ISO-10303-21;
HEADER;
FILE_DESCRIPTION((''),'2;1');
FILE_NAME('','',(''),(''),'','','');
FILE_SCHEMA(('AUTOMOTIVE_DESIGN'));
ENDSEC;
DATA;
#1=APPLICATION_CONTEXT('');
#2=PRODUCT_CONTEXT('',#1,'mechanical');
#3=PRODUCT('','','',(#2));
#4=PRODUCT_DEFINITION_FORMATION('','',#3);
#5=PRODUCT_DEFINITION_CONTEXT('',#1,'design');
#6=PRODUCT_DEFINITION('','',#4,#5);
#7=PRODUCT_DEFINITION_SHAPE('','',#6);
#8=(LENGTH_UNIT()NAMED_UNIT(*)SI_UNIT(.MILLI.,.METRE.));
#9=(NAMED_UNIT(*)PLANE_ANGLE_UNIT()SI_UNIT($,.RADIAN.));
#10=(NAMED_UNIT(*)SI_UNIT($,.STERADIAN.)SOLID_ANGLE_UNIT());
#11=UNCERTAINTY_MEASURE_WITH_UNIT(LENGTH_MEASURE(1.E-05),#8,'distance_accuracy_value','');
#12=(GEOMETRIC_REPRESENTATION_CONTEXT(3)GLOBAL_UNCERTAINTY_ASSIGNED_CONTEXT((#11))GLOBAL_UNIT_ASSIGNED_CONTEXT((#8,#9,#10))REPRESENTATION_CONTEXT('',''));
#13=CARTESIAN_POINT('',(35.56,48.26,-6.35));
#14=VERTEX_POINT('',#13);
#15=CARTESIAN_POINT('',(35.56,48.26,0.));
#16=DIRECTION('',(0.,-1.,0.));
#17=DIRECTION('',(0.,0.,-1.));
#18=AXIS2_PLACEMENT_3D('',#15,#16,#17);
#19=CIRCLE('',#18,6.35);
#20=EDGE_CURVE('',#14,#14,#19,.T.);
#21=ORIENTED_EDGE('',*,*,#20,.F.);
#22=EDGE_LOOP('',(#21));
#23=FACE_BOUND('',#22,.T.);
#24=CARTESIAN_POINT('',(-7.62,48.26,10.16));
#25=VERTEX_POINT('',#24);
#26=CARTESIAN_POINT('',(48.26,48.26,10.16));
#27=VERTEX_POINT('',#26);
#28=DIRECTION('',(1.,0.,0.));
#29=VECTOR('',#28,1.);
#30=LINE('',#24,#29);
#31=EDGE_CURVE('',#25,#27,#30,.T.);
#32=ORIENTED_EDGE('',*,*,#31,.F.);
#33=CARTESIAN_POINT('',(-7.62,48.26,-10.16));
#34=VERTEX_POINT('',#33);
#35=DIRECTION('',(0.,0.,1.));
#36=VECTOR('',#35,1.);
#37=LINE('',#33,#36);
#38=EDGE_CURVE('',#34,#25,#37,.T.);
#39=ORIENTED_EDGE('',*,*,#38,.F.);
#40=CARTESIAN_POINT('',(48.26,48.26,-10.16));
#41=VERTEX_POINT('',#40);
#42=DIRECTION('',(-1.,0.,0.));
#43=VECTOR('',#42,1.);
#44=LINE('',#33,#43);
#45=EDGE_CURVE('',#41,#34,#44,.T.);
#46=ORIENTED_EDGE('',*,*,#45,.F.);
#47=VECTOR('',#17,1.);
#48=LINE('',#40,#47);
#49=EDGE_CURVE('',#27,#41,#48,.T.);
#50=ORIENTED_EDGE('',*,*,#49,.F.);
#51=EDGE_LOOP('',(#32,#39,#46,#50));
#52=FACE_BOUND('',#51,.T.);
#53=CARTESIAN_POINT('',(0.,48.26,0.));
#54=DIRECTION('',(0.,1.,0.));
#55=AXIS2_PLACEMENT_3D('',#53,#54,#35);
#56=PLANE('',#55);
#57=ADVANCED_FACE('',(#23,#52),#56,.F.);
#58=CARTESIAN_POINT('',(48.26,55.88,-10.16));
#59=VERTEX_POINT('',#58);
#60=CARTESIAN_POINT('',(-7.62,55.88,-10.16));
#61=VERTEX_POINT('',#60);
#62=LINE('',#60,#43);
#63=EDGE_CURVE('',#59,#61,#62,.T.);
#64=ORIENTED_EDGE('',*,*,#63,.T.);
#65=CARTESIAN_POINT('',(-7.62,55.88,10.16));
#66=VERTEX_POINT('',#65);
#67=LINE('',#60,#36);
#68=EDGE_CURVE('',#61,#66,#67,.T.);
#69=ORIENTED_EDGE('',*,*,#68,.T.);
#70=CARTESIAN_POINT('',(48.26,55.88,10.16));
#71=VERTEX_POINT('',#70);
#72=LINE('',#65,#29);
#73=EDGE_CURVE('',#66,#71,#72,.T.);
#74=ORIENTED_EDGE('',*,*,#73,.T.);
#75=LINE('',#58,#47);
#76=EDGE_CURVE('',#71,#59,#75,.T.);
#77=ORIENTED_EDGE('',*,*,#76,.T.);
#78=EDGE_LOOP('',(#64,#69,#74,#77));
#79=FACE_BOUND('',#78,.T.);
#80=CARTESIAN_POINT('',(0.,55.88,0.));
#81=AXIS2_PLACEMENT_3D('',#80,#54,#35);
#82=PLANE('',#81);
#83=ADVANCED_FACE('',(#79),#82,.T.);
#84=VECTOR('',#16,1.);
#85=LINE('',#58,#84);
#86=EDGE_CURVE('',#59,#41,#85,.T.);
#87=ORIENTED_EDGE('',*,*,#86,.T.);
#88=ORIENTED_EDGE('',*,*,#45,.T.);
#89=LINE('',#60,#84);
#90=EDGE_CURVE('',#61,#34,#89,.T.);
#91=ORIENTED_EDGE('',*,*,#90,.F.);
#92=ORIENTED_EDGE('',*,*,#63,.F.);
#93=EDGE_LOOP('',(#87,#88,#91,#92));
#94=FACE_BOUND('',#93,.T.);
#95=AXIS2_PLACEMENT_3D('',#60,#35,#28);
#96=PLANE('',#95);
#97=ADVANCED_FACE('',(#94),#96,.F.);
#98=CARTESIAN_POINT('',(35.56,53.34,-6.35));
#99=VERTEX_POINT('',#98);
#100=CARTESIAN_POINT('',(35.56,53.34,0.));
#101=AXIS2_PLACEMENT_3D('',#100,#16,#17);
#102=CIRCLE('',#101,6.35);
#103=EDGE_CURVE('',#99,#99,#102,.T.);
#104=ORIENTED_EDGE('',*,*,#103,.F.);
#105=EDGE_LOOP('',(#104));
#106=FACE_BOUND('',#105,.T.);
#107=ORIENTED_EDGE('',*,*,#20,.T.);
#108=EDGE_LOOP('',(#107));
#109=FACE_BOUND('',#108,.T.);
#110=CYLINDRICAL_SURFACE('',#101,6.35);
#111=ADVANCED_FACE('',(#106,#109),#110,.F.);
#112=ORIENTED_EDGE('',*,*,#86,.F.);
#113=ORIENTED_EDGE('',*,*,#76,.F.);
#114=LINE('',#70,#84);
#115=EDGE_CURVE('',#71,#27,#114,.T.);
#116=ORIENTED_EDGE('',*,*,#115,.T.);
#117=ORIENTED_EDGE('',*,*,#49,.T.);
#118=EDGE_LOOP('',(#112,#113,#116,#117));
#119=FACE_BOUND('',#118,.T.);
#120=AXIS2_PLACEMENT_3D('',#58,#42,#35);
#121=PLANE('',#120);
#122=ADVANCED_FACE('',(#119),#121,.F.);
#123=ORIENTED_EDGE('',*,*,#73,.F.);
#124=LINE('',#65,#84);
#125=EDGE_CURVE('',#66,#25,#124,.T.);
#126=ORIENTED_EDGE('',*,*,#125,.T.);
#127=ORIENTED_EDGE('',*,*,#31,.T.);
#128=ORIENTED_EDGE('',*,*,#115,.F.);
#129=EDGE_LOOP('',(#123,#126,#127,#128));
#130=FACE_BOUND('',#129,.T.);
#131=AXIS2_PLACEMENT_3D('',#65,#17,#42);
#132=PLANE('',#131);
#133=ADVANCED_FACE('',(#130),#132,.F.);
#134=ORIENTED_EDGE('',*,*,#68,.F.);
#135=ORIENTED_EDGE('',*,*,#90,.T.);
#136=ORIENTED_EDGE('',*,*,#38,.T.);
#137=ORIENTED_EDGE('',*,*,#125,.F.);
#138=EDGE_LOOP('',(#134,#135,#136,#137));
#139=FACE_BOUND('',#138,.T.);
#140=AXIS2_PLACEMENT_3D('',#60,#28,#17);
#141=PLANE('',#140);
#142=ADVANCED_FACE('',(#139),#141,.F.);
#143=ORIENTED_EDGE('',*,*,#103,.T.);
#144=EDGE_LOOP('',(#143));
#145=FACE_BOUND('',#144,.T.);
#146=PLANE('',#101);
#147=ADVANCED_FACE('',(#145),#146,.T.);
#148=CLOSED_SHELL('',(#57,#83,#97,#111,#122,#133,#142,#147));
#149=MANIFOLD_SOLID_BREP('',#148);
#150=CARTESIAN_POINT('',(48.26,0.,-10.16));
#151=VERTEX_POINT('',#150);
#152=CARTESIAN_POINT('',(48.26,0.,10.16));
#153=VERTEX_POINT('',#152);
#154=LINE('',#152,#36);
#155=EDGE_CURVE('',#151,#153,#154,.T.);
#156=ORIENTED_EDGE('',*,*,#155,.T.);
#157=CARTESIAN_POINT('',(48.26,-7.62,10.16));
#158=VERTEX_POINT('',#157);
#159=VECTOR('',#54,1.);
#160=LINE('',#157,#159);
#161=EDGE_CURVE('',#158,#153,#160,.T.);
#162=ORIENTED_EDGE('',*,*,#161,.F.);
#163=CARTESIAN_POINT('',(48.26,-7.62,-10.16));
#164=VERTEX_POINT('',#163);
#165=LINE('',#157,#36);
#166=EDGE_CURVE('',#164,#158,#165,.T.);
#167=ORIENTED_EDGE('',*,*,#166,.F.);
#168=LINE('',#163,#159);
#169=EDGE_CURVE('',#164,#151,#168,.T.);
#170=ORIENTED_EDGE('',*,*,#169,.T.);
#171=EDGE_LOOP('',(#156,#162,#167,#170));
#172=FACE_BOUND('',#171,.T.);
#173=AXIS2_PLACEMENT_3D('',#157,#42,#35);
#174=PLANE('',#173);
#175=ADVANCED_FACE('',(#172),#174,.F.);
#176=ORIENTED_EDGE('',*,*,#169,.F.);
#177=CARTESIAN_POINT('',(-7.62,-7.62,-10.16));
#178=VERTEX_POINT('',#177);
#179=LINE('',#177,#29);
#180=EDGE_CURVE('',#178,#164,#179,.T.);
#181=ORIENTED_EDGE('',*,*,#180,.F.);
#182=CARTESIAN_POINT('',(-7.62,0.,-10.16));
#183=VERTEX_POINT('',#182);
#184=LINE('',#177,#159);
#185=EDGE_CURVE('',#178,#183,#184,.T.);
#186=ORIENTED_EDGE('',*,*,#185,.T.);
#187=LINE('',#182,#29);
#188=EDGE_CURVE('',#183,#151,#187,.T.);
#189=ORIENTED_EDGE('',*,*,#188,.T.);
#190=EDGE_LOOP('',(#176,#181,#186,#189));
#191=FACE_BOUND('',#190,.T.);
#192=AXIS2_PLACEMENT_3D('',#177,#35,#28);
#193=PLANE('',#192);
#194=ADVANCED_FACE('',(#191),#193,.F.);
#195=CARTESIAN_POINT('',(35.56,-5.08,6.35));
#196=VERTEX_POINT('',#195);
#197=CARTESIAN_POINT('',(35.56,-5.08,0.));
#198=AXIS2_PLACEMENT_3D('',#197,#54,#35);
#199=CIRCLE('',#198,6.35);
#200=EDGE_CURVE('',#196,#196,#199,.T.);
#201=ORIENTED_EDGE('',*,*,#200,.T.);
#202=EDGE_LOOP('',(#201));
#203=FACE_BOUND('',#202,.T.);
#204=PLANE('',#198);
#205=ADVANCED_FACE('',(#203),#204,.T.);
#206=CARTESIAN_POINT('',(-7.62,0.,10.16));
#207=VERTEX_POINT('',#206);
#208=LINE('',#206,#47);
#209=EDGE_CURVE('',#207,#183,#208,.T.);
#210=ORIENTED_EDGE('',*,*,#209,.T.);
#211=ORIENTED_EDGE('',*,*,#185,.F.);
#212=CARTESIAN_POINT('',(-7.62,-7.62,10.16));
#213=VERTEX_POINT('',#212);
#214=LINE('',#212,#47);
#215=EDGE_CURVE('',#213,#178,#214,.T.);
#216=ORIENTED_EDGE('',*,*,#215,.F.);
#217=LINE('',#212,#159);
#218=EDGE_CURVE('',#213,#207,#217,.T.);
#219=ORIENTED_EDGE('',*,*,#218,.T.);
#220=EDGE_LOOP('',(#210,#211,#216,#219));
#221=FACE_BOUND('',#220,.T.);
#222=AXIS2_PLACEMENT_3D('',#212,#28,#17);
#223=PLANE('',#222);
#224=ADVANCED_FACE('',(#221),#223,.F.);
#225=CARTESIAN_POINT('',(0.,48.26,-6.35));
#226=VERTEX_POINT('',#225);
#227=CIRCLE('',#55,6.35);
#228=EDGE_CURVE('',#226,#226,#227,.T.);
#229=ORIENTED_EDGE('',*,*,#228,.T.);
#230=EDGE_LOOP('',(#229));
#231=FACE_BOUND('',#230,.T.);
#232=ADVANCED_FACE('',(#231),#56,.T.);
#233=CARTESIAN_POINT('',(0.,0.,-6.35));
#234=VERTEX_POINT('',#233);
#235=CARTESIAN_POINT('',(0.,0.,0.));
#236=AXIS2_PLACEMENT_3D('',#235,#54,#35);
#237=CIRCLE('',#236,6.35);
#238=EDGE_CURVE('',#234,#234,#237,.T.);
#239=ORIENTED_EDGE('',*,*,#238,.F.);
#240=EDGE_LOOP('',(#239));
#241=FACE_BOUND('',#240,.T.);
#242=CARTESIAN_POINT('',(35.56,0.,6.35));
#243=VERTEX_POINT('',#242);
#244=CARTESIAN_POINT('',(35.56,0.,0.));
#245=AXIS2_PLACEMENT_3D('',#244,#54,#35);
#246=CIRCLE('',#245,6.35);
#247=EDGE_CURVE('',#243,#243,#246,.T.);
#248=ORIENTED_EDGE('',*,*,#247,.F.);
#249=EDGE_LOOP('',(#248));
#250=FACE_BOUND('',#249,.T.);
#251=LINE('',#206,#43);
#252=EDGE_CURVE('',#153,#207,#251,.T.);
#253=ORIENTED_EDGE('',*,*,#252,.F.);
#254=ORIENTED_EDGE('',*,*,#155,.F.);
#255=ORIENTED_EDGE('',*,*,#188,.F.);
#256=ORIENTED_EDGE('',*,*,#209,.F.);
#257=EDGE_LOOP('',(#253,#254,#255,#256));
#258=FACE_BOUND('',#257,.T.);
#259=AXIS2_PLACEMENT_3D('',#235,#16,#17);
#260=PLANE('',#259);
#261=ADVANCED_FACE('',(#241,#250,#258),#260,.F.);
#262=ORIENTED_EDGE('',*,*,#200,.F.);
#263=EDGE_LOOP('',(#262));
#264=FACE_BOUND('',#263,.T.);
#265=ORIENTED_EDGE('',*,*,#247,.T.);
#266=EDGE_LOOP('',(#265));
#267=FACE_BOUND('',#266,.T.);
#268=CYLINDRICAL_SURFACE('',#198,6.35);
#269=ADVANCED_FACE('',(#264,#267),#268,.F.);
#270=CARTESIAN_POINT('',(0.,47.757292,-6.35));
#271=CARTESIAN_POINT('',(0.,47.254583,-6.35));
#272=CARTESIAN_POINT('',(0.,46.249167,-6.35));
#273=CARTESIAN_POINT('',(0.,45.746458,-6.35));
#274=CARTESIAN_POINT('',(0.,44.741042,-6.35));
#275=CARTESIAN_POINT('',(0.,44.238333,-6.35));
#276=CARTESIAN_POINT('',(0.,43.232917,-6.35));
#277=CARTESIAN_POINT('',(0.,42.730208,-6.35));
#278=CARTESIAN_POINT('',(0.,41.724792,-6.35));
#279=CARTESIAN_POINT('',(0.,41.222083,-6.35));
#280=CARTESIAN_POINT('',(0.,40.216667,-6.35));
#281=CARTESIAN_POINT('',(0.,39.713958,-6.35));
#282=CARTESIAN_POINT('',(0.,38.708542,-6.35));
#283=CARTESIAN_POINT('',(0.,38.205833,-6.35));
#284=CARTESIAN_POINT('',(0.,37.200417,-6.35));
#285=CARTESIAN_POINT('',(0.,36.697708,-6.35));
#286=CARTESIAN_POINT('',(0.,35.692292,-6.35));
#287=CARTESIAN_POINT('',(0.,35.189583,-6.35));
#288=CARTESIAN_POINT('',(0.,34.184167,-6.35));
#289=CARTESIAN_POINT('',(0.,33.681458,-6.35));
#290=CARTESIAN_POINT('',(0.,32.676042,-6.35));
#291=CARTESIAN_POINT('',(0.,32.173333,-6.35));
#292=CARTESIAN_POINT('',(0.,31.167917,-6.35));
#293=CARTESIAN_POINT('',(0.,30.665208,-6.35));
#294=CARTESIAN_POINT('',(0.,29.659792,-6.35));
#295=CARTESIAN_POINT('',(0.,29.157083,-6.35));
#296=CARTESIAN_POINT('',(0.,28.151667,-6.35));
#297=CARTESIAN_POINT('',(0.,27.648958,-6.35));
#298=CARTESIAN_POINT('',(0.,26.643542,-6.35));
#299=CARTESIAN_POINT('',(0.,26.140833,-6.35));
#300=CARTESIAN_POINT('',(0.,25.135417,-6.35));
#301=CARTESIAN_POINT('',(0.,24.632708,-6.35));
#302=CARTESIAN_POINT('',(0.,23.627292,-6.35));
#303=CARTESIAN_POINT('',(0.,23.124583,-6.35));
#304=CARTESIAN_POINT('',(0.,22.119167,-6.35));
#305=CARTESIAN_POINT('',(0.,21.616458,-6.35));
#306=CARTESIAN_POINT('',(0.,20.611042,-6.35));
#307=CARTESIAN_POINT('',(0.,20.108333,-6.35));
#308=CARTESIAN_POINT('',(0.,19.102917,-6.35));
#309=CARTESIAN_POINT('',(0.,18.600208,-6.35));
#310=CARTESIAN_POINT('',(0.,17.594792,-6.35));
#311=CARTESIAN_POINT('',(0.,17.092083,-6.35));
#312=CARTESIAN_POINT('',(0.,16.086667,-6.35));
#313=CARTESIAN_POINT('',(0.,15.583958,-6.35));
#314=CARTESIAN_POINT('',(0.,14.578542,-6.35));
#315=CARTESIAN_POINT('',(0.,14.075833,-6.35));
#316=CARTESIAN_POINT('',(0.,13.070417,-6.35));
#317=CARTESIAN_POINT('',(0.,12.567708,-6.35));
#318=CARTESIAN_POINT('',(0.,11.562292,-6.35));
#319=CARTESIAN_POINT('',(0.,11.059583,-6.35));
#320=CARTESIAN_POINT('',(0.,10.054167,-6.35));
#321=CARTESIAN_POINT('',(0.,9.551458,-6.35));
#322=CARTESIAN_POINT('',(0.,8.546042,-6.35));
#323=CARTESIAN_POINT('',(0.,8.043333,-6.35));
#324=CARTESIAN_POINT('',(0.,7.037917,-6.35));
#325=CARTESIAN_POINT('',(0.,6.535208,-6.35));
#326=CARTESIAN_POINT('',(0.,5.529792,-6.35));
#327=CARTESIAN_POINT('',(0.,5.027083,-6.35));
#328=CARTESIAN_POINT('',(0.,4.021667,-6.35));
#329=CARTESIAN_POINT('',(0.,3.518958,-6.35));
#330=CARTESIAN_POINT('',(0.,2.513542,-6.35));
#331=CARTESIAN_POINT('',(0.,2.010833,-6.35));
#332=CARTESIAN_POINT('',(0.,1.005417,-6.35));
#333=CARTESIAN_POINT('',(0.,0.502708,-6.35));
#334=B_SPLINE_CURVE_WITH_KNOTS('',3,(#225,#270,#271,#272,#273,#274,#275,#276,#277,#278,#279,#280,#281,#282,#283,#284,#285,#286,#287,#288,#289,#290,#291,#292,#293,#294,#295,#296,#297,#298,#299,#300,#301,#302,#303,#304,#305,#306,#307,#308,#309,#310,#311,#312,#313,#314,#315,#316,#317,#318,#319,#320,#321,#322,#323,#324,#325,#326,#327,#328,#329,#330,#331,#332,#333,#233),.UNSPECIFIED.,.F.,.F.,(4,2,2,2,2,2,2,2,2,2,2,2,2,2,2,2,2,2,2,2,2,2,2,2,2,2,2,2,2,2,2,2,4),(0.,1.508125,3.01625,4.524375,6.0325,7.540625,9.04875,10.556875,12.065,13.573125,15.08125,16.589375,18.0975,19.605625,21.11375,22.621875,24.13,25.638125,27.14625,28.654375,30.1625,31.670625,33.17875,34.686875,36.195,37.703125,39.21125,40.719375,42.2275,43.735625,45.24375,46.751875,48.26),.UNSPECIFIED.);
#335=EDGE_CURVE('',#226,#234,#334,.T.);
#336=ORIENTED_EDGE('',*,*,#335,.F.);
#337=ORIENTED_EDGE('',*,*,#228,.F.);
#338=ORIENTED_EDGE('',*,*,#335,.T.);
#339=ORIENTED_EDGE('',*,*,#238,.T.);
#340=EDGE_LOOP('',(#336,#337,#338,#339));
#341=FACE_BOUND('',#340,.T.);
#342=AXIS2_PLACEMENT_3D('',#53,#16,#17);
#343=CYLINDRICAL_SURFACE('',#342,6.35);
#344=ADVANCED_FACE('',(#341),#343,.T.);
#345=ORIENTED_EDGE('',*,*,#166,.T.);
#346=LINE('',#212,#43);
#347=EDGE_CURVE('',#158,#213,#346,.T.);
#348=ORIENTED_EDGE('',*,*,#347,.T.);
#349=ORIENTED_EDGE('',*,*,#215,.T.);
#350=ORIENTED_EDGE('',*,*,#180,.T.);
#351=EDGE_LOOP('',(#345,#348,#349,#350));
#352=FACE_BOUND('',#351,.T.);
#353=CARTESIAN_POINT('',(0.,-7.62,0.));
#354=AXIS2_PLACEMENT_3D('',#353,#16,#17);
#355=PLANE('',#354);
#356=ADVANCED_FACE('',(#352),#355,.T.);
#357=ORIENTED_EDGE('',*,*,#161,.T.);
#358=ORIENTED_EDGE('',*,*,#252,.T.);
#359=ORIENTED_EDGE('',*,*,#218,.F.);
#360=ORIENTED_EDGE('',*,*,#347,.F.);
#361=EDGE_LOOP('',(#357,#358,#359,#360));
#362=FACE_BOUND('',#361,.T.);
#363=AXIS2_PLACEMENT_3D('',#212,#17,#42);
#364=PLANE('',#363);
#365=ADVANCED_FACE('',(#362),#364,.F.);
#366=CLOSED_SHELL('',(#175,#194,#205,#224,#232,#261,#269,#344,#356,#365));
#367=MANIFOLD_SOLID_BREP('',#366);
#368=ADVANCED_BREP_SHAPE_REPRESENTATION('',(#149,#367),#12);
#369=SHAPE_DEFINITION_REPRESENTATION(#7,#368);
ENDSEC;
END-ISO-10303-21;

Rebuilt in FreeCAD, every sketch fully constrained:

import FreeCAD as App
import Part
import Sketcher
Q = App.Units.Quantity

doc = App.newDocument("Part")
body = doc.addObject("PartDesign::Body", "Body")

# Sketch on XZ plane
sketch1 = body.newObject("Sketcher::SketchObject", "Sketch")
sketch1.AttachmentSupport = (doc.getObject("XZ_Plane"), [""])
sketch1.MapMode = "FlatFace"
sketch1.addGeometry(Part.Circle(App.Vector(0, 0, 0), App.Vector(0, 0, 1), 6), False)
sketch1.addConstraint([
    Sketcher.Constraint("Coincident", 0, 3, -1, 1),
    Sketcher.Constraint("Diameter", 0, Q("0.5 in")),
])
pad1 = body.newObject("PartDesign::Pad", "Pad")
pad1.Profile = sketch1
pad1.Length = Q("1.9 in")
pad1.Reversed = True

# Sketch on XZ plane
sketch2 = body.newObject("Sketcher::SketchObject", "Sketch001")
sketch2.AttachmentSupport = (doc.getObject("XZ_Plane"), [""])
sketch2.MapMode = "FlatFace"
sketch2.addGeometry([
    Part.LineSegment(App.Vector(-8, 10, 0), App.Vector(-8, -10, 0)),
    Part.LineSegment(App.Vector(-8, -10, 0), App.Vector(48, -10, 0)),
    Part.LineSegment(App.Vector(48, -10, 0), App.Vector(48, 10, 0)),
    Part.LineSegment(App.Vector(48, 10, 0), App.Vector(-8, 10, 0)),
], False)
sketch2.addConstraint([
    Sketcher.Constraint("Coincident", 0, 2, 1, 1),
    Sketcher.Constraint("Coincident", 1, 2, 2, 1),
    Sketcher.Constraint("Coincident", 2, 2, 3, 1),
    Sketcher.Constraint("Coincident", 3, 2, 0, 1),
    Sketcher.Constraint("Vertical", 0),
    Sketcher.Constraint("Horizontal", 1),
    Sketcher.Constraint("Vertical", 2),
    Sketcher.Constraint("Horizontal", 3),
    Sketcher.Constraint("DistanceX", 1, 1, 1, 2, Q("2.2 in")),
    Sketcher.Constraint("DistanceY", 0, 2, 0, 1, Q("0.8 in")),
    Sketcher.Constraint("DistanceX", 0, 2, -1, 1, Q("0.3 in")),
    Sketcher.Constraint("DistanceY", 0, 2, -1, 1, Q("0.4 in")),
])
pad2 = body.newObject("PartDesign::Pad", "Pad001")
pad2.Profile = sketch2
pad2.Length = Q("0.3 in")

# Sketch on XZ plane
sketch3 = body.newObject("Sketcher::SketchObject", "Sketch002")
sketch3.AttachmentSupport = (doc.getObject("XZ_Plane"), [""])
sketch3.MapMode = "FlatFace"
sketch3.addGeometry(Part.Circle(App.Vector(36, 0, 0), App.Vector(0, 0, 1), 6), False)
sketch3.addConstraint([
    Sketcher.Constraint("PointOnObject", 0, 3, -1),
    Sketcher.Constraint("Diameter", 0, Q("0.5 in")),
    Sketcher.Constraint("DistanceX", -1, 1, 0, 3, Q("1.4 in")),
])
pocket1 = body.newObject("PartDesign::Pocket", "Pocket")
pocket1.Profile = sketch3
pocket1.Length = Q("0.2 in")
pocket1.Reversed = True
body2 = doc.addObject("PartDesign::Body", "Body001")

# Sketch on XZ plane
sketch4 = body2.newObject("Sketcher::SketchObject", "Sketch003")
sketch4.AttachmentSupport = (doc.getObject("XZ_Plane001"), [""])
sketch4.MapMode = "FlatFace"
sketch4.AttachmentOffset = App.Placement(App.Vector(0, 0, -1.9 * 25.4), App.Rotation())
sketch4.addGeometry([
    Part.LineSegment(App.Vector(-8, -10, 0), App.Vector(-8, 10, 0)),
    Part.LineSegment(App.Vector(-8, 10, 0), App.Vector(48, 10, 0)),
    Part.LineSegment(App.Vector(48, 10, 0), App.Vector(48, -10, 0)),
    Part.LineSegment(App.Vector(48, -10, 0), App.Vector(-8, -10, 0)),
], False)
sketch4.addConstraint([
    Sketcher.Constraint("Coincident", 0, 2, 1, 1),
    Sketcher.Constraint("Coincident", 1, 2, 2, 1),
    Sketcher.Constraint("Coincident", 2, 2, 3, 1),
    Sketcher.Constraint("Coincident", 3, 2, 0, 1),
    Sketcher.Constraint("Vertical", 0),
    Sketcher.Constraint("Horizontal", 1),
    Sketcher.Constraint("Vertical", 2),
    Sketcher.Constraint("Horizontal", 3),
    Sketcher.Constraint("DistanceX", 1, 1, 1, 2, Q("2.2 in")),
    Sketcher.Constraint("DistanceY", 0, 1, 0, 2, Q("0.8 in")),
    Sketcher.Constraint("DistanceX", 0, 2, -1, 1, Q("0.3 in")),
    Sketcher.Constraint("DistanceY", -1, 1, 0, 2, Q("0.4 in")),
])
pad3 = body2.newObject("PartDesign::Pad", "Pad002")
pad3.Profile = sketch4
pad3.Length = Q("0.3 in")
pad3.Reversed = True

# Sketch on XZ plane
sketch5 = body2.newObject("Sketcher::SketchObject", "Sketch004")
sketch5.AttachmentSupport = (doc.getObject("XZ_Plane001"), [""])
sketch5.MapMode = "FlatFace"
sketch5.AttachmentOffset = App.Placement(App.Vector(0, 0, -2.1 * 25.4), App.Rotation())
sketch5.addGeometry(Part.Circle(App.Vector(36, 0, 0), App.Vector(0, 0, 1), 6), False)
sketch5.addConstraint([
    Sketcher.Constraint("PointOnObject", 0, 3, -1),
    Sketcher.Constraint("Diameter", 0, Q("0.5 in")),
    Sketcher.Constraint("DistanceX", -1, 1, 0, 3, Q("1.4 in")),
])
pocket2 = body2.newObject("PartDesign::Pocket", "Pocket001")
pocket2.Profile = sketch5
pocket2.Length = Q("0.2 in")
pocket2.Reversed = True

doc.recompute()
